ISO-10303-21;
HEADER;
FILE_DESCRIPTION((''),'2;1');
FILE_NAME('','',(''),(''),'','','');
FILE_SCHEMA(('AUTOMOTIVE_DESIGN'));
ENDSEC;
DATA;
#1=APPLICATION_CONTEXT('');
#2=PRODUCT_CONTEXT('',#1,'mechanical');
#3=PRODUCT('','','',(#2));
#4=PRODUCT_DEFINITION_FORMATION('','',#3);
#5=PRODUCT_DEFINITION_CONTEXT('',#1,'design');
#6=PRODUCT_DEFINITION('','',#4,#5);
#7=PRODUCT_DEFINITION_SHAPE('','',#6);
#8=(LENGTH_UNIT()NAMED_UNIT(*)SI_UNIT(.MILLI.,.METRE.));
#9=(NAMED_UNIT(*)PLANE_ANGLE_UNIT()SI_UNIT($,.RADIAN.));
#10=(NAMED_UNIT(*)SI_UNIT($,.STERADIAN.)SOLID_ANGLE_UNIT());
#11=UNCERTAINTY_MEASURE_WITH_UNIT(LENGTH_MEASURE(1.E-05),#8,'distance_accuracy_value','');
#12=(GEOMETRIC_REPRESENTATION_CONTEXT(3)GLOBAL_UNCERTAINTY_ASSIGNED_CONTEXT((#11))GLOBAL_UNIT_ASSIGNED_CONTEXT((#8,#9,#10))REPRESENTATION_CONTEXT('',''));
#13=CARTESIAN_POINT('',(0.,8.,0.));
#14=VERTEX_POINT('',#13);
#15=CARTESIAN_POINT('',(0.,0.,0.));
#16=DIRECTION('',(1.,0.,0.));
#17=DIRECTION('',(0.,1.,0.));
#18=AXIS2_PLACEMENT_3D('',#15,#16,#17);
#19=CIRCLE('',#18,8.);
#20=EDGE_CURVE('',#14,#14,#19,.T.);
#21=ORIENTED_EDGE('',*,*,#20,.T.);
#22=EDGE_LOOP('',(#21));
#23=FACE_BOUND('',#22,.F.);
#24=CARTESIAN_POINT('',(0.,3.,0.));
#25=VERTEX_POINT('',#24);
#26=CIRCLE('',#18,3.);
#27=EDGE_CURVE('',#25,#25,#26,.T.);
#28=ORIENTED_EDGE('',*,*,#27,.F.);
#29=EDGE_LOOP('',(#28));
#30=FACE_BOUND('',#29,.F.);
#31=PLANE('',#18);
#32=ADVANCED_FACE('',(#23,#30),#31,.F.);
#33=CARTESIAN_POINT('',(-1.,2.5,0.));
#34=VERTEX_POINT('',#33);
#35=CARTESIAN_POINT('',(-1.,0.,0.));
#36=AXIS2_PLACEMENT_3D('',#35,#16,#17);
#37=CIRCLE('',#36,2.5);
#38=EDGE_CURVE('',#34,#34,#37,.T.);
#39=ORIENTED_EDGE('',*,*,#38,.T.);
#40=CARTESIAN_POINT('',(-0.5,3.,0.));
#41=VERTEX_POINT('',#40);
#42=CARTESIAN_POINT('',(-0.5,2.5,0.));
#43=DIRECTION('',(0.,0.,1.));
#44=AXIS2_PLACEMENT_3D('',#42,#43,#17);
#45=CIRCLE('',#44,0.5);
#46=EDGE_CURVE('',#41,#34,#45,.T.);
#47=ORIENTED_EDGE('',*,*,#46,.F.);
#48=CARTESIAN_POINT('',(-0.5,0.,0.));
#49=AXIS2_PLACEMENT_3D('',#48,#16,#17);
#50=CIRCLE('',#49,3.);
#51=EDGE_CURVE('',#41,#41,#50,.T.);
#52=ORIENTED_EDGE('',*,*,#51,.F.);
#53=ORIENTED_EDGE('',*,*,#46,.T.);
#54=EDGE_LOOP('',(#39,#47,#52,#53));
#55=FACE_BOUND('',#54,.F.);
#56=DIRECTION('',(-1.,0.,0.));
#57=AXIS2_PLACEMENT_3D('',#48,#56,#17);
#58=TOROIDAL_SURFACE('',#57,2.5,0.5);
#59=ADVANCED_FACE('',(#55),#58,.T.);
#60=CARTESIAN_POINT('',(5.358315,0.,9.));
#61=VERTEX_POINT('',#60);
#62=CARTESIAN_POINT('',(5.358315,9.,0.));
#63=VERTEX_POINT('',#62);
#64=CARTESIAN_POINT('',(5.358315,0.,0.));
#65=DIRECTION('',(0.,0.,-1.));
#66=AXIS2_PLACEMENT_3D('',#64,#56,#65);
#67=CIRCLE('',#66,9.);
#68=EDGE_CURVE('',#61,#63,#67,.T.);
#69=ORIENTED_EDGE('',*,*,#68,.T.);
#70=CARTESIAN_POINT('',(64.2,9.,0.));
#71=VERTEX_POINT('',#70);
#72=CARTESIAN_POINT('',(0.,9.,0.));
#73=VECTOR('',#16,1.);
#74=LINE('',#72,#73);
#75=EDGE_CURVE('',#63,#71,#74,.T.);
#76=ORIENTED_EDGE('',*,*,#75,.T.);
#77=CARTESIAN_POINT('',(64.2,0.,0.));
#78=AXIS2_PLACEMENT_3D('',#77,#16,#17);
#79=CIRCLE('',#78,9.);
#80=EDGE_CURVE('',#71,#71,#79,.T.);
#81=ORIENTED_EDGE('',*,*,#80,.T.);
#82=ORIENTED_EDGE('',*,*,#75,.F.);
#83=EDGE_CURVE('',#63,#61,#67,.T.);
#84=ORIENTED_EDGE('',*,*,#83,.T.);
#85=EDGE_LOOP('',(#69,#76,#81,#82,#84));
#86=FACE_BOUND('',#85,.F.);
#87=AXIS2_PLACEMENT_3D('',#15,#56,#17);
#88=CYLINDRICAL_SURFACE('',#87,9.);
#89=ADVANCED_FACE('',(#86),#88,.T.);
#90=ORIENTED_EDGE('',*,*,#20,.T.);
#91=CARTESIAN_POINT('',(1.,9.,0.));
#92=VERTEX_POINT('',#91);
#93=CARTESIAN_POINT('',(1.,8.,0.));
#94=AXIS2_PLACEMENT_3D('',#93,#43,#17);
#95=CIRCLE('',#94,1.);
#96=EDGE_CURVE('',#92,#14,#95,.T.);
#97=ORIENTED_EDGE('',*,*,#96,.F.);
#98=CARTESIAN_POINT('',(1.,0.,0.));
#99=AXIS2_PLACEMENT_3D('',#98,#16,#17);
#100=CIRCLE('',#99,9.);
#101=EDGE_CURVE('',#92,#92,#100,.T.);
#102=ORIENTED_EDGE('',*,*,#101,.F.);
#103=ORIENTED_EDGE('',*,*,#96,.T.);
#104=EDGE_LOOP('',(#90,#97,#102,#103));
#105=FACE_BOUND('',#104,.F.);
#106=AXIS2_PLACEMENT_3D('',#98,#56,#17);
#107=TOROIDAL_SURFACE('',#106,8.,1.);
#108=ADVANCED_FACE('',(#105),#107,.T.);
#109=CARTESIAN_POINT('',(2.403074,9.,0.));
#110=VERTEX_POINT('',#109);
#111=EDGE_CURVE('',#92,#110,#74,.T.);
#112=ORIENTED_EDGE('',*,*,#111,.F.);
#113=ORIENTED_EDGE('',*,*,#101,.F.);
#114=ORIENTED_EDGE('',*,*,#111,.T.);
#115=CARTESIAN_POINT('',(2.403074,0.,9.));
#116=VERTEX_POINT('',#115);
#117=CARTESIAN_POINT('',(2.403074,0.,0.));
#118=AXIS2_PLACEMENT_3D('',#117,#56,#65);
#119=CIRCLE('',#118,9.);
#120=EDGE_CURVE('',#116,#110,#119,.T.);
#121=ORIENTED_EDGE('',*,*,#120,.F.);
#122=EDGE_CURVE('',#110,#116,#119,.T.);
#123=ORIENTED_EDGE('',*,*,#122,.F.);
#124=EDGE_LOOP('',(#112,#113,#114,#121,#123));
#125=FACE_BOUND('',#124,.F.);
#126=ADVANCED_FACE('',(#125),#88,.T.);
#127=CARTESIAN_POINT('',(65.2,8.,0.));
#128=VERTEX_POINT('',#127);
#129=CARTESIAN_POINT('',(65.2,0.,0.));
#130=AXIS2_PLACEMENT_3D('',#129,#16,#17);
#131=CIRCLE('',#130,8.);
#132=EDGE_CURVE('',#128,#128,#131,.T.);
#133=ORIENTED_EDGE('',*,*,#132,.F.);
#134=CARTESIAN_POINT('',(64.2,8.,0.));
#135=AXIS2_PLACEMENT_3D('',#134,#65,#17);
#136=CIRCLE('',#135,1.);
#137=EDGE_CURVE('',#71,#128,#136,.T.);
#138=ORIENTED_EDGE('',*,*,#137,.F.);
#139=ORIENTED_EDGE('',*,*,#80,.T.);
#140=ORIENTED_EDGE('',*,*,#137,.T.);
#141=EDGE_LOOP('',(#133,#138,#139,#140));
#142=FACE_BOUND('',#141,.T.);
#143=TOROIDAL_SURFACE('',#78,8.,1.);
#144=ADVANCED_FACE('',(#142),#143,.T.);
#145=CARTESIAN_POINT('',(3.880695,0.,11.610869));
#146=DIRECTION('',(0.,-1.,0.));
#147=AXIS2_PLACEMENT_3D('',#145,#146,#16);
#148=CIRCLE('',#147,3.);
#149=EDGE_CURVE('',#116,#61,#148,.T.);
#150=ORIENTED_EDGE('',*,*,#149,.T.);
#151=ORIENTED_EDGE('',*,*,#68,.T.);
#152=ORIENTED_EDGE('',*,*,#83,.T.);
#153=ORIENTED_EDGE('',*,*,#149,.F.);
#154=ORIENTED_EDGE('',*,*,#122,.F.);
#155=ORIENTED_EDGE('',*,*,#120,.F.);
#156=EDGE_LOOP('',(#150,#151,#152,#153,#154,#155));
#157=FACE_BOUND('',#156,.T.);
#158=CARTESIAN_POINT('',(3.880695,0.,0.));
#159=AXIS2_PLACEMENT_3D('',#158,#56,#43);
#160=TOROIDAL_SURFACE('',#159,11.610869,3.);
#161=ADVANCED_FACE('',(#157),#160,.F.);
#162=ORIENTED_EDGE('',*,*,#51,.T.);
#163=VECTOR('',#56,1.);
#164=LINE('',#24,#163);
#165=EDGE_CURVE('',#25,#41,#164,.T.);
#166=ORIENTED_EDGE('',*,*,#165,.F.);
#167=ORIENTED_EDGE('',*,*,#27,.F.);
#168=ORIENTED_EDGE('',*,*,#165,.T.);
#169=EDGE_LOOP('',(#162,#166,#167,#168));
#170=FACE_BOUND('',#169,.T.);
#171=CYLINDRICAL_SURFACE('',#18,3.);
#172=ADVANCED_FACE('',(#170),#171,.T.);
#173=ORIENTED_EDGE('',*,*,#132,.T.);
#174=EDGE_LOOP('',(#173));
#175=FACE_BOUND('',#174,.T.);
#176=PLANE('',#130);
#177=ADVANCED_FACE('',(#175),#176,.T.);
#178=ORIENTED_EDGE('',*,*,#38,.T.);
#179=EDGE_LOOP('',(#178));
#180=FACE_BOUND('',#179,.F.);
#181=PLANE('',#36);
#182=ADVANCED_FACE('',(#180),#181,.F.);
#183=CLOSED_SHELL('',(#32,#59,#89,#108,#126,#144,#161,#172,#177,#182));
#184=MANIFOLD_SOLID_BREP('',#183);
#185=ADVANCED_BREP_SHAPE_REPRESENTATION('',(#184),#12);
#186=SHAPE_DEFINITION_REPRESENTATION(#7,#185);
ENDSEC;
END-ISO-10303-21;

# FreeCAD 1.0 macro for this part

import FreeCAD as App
import Part
import Sketcher
from FreeCAD import Vector
Q = App.Units.Quantity


def edges_at(feature, points):
    """Names of the edges that pass closest to the given points."""
    edges = feature.Shape.Edges
    near = lambda p: min(range(len(edges)), key=lambda i: edges[i].distToShape(Part.Vertex(*p))[0])
    return sorted({f"Edge{near(p) + 1}" for p in points})

doc = App.newDocument("Part")
body = doc.addObject("PartDesign::Body", "Body")

# Sketch on YZ plane
sketch1 = body.newObject("Sketcher::SketchObject", "Sketch")
sketch1.AttachmentSupport = (doc.getObject("YZ_Plane"), [""])
sketch1.MapMode = "FlatFace"
sketch1.addGeometry(Part.Circle(Vector(0, 0, 0), Vector(0, 0, 1), 9), False)
sketch1.addConstraint([
    Sketcher.Constraint("Coincident", 0, 3, -1, 1),
    Sketcher.Constraint("Diameter", 0, Q("18 mm")),
])
pad1 = body.newObject("PartDesign::Pad", "Pad")
pad1.Profile = sketch1
pad1.Length = 65.2
doc.recompute()

fillet = body.newObject("PartDesign::Fillet", "Fillet")
fillet.Base = (pad1, edges_at(pad1, [(65.2, -9, 0), (0, -9, 0)]))
fillet.Radius = 1

# Sketch on YZ plane
sketch2 = body.newObject("Sketcher::SketchObject", "Sketch001")
sketch2.AttachmentSupport = (doc.getObject("YZ_Plane"), [""])
sketch2.MapMode = "FlatFace"
sketch2.addGeometry(Part.Circle(Vector(0, 0, 0), Vector(0, 0, 1), 3), False)
sketch2.addConstraint([
    Sketcher.Constraint("Coincident", 0, 3, -1, 1),
    Sketcher.Constraint("Diameter", 0, Q("6 mm")),
])
pad2 = body.newObject("PartDesign::Pad", "Pad001")
pad2.Profile = sketch2
pad2.Length = 1
pad2.Reversed = True
doc.recompute()

fillet2 = body.newObject("PartDesign::Fillet", "Fillet001")
fillet2.Base = (pad2, edges_at(pad2, [(-1, -3, 0)]))
fillet2.Radius = 0.5

# Sketch on XZ plane
sketch3 = body.newObject("Sketcher::SketchObject", "Sketch002")
sketch3.AttachmentSupport = (doc.getObject("XZ_Plane"), [""])
sketch3.MapMode = "FlatFace"
sketch3.addGeometry(Part.Circle(Vector(3.880695, 11.610869, 0), Vector(0, 0, 1), 3), False)
sketch3.addConstraint([
    Sketcher.Constraint("Diameter", 0, Q("6 mm")),
    Sketcher.Constraint("DistanceY", -1, 1, 0, 3, Q("11.610869 mm")),
    Sketcher.Constraint("DistanceX", -1, 1, 0, 3, Q("3.880695 mm")),
])
groove = body.newObject("PartDesign::Groove", "Groove")
groove.Profile = sketch3
groove.ReferenceAxis = (sketch3, ["H_Axis"])
groove.Angle = 360

doc.recompute()
